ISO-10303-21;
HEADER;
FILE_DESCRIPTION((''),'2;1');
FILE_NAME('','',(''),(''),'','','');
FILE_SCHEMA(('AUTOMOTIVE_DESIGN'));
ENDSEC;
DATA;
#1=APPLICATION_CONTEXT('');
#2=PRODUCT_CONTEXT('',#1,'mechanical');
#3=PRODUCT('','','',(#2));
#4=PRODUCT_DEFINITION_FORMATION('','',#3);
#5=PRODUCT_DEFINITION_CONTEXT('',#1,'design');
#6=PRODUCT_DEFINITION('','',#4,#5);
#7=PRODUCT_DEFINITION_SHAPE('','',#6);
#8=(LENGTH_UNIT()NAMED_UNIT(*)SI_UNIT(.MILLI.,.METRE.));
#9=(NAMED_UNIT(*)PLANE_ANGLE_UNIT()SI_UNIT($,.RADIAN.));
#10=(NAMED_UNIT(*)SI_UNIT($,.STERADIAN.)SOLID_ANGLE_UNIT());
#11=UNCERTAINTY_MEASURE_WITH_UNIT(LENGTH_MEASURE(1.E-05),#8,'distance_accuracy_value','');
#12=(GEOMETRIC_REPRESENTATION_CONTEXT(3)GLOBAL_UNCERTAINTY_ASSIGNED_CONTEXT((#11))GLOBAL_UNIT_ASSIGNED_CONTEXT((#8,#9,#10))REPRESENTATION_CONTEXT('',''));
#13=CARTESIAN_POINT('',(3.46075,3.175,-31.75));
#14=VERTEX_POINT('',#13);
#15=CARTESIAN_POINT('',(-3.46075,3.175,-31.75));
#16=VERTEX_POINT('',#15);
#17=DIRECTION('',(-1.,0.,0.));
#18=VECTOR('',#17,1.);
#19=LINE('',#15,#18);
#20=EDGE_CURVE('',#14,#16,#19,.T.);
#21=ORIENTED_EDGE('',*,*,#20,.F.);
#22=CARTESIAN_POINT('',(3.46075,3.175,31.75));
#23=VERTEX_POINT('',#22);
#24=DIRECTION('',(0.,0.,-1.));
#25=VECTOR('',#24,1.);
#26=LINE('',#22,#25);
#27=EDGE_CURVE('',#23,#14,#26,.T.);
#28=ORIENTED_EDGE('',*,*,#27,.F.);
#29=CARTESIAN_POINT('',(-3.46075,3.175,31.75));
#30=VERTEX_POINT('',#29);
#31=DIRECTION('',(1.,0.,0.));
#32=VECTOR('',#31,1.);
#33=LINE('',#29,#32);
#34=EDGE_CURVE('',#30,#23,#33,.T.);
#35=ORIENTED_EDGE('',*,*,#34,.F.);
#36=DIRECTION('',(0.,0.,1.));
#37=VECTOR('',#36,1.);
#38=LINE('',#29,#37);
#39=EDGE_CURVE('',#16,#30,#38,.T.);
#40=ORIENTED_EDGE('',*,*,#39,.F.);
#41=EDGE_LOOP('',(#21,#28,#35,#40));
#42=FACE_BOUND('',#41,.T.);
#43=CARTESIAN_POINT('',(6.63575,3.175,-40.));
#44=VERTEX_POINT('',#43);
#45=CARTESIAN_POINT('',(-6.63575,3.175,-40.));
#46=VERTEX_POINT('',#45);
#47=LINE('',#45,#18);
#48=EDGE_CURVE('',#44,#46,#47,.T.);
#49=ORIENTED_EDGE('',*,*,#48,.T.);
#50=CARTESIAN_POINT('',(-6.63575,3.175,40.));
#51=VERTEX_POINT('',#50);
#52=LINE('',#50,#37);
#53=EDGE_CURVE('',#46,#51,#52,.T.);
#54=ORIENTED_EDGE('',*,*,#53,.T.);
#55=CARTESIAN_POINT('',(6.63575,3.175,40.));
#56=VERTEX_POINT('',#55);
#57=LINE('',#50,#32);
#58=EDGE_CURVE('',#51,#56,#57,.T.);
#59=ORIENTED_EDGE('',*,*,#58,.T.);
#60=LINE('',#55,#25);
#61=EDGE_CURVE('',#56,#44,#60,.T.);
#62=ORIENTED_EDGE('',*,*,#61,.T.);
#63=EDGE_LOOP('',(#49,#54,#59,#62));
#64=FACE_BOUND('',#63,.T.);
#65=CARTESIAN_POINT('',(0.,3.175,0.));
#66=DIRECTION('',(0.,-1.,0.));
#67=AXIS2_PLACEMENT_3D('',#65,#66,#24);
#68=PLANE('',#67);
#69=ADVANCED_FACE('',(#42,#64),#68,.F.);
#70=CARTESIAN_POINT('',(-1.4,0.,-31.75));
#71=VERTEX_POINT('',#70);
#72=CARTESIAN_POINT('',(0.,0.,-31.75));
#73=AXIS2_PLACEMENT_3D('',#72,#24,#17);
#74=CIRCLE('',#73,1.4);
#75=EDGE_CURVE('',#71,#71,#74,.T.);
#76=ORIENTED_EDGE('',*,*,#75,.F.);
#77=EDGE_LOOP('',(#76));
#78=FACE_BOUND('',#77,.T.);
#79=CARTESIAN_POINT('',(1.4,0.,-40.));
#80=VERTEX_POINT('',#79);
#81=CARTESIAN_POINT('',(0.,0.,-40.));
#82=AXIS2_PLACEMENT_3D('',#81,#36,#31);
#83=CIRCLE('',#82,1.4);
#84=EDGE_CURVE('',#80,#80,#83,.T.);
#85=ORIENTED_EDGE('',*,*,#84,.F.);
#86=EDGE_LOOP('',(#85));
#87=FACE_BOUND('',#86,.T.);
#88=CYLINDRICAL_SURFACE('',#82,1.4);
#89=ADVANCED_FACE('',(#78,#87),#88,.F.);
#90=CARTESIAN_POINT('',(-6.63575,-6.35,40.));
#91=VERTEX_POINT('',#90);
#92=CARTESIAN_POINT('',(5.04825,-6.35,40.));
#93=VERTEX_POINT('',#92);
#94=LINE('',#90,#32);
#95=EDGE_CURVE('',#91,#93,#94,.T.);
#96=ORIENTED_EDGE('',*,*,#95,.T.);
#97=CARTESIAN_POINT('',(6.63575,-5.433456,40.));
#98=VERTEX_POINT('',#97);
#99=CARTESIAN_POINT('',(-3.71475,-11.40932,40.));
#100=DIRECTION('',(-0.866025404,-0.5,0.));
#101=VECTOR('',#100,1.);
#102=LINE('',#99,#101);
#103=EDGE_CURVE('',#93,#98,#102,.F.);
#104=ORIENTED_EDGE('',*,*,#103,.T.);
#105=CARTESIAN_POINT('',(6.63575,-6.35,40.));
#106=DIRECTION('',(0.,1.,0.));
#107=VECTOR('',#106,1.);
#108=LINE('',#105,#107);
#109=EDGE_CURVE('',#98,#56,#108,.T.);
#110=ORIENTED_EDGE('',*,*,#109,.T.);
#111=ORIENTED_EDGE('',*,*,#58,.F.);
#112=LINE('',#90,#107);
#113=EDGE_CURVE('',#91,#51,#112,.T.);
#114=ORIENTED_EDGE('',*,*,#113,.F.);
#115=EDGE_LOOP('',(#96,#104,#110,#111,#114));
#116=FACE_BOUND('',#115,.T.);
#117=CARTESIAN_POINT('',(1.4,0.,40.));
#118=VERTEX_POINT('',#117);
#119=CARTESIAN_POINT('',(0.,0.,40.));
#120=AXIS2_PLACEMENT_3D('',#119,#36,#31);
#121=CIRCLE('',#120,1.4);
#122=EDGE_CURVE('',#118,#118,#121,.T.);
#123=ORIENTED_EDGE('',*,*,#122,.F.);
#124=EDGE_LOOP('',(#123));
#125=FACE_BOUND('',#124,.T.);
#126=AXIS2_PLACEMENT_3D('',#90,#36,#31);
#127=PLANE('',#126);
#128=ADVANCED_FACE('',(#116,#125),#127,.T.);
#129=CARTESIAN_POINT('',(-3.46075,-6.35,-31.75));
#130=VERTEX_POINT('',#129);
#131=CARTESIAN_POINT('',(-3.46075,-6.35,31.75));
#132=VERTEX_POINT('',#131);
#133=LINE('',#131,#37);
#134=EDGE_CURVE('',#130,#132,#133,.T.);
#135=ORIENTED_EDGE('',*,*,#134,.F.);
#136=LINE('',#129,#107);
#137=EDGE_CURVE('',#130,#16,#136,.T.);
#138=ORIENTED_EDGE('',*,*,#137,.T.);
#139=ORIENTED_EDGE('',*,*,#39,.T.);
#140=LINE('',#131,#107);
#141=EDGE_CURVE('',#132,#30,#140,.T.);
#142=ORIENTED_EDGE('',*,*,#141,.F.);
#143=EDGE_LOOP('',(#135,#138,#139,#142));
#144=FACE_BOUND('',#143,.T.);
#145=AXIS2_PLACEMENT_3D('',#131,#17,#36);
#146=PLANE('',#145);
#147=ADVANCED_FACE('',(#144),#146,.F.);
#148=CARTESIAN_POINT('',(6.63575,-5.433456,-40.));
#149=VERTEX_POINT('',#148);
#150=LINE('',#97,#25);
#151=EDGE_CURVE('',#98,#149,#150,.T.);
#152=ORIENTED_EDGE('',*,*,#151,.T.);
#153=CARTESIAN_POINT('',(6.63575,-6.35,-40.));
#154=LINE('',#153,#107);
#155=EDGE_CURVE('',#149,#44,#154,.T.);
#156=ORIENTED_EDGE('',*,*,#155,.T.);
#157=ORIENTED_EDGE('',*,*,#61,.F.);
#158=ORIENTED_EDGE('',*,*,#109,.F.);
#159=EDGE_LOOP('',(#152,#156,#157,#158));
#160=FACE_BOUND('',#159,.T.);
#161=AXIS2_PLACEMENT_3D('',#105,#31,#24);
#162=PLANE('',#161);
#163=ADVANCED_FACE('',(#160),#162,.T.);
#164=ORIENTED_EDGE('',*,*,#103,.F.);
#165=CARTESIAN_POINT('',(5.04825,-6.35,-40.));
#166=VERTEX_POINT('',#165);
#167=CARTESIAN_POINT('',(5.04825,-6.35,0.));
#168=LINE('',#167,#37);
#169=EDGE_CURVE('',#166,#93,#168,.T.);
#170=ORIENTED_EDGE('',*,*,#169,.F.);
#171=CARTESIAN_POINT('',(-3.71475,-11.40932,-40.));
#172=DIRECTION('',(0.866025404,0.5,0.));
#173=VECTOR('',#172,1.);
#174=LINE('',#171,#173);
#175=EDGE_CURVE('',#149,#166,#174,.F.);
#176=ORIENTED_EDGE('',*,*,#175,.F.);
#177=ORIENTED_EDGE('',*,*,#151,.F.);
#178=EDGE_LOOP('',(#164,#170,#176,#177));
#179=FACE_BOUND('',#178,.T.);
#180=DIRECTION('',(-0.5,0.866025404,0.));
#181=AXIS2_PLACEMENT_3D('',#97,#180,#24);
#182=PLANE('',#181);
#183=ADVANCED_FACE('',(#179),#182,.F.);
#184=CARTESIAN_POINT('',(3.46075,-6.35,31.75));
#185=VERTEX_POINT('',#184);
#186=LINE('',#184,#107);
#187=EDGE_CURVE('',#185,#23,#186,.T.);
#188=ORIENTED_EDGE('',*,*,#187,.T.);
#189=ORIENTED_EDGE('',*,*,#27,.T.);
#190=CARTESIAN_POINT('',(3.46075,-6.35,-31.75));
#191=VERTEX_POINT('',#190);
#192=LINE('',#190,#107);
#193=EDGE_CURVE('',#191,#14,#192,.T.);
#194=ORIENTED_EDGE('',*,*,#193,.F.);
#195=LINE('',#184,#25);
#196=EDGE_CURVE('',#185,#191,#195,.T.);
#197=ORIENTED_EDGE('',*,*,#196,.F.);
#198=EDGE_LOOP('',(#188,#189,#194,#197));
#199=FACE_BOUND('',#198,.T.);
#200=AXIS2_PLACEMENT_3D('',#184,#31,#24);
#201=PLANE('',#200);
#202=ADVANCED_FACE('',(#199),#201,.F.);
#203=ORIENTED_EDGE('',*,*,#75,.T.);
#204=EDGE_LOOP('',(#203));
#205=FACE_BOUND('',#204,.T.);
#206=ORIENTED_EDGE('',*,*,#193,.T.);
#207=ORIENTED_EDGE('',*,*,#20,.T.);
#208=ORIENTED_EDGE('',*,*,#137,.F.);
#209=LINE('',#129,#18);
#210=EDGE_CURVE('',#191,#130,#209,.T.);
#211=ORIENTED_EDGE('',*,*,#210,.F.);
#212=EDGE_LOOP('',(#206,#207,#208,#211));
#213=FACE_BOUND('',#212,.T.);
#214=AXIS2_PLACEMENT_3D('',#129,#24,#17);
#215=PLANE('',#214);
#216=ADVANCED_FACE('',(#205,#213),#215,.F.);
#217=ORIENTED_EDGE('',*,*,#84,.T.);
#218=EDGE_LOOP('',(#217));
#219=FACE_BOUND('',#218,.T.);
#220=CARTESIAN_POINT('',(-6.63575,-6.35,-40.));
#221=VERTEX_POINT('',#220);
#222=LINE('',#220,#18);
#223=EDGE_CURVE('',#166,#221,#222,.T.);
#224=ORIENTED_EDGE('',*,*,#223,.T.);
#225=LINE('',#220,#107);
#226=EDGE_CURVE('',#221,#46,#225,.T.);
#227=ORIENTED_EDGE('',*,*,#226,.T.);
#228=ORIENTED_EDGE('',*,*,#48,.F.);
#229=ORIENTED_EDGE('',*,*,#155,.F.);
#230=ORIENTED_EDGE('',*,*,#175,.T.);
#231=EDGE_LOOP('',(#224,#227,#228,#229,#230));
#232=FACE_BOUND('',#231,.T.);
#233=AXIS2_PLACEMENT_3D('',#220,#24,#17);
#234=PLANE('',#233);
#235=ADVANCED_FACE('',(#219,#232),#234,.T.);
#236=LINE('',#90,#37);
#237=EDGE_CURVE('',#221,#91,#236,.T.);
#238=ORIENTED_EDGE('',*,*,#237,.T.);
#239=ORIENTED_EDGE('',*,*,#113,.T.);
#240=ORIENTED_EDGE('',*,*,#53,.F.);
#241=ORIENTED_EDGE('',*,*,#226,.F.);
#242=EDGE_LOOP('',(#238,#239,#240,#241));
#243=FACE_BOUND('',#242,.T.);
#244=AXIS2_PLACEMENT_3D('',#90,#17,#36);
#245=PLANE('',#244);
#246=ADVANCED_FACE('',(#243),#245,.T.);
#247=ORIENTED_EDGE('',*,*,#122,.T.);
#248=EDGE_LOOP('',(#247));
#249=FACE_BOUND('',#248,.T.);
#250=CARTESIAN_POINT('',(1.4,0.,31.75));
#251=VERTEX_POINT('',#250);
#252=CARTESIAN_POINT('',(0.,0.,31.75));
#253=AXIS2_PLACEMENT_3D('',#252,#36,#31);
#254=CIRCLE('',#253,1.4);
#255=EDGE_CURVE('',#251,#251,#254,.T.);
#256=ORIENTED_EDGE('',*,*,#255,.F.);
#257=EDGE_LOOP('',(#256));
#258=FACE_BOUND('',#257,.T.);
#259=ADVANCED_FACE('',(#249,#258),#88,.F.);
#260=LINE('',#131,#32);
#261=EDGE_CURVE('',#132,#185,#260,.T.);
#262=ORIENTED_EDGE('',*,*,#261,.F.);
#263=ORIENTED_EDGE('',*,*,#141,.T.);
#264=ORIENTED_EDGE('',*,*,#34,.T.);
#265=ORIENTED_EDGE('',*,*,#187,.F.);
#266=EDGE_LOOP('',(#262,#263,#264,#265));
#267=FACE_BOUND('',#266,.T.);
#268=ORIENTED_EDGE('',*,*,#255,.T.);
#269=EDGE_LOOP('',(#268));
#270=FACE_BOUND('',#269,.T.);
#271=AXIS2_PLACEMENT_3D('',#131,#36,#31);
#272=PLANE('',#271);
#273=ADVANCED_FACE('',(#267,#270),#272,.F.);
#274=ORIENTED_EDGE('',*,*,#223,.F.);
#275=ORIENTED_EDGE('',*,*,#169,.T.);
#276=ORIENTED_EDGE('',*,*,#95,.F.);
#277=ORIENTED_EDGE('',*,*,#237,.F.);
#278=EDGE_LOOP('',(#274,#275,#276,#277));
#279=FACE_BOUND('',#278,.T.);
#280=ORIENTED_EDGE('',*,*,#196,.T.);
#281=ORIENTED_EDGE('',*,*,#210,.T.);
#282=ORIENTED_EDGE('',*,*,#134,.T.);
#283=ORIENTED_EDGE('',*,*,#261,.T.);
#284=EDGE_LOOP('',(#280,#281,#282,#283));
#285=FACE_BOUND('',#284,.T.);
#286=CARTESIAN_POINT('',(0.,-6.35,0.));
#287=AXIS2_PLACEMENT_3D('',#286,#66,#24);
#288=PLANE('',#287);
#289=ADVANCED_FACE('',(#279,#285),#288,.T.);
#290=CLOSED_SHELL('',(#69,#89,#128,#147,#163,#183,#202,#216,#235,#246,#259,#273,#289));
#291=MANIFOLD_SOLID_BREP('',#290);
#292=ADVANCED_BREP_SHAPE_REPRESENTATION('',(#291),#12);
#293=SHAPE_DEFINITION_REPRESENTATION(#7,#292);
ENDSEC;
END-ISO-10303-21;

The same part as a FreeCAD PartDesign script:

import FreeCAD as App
import Part
import Sketcher

V = App.Vector


def edges_at(feature, points):
    """Names of the edges that pass closest to the given points."""
    edges = feature.Shape.Edges
    near = lambda p: min(range(len(edges)), key=lambda i: edges[i].distToShape(Part.Vertex(*p))[0])
    return sorted({f"Edge{near(p) + 1}" for p in points})


def add_polygon(sketch, points):
    """Adds a closed chain of lines whose ends are joined by coincident constraints."""
    first, n = sketch.GeometryCount, len(points)
    for a, b in zip(points, points[1:] + points[:1]):
        sketch.addGeometry(Part.LineSegment(App.Vector(*a, 0), App.Vector(*b, 0)), False)
    for i in range(n):
        sketch.addConstraint(Sketcher.Constraint("Coincident", first + i, 2, first + (i + 1) % n, 1))

doc = App.newDocument("Part")
params = doc.addObject("Spreadsheet::Sheet", "Params")
for row, (alias, value) in enumerate([
    ("sketch1_height", "80 mm"),
    ("sketch1_height2", "63.5 mm"),
    ("pad1_length", "3.175 mm"),
    ("pad1_length2", "6.35 mm"),
    ("sketch2_diameter", "2.8 mm"),
    ("chamfer_size", "1.5875 mm"),
    ("chamfer_size2", "0.916544 mm"),
], start=1):
    params.set(f"A{row}", alias)
    params.set(f"B{row}", "=" + value)
    params.setAlias(f"B{row}", alias)

body = doc.addObject("PartDesign::Body", "Body")

# Sketch on XZ plane
sketch1 = doc.addObject("Sketcher::SketchObject", "Sketch")
body.addObject(sketch1)
sketch1.AttachmentSupport = (doc.XZ_Plane, [""])
sketch1.MapMode = "FlatFace"
add_polygon(sketch1, [(-7, -40), (-7, 40), (7, 40), (7, -40)])  # lines 0-3
add_polygon(sketch1, [(3, 32), (-3, 32), (-3, -32), (3, -32)])  # lines 4-7
sketch1.addConstraint([
    Sketcher.Constraint("Vertical", 0),
    Sketcher.Constraint("Horizontal", 1),
    Sketcher.Constraint("Vertical", 2),
    Sketcher.Constraint("Horizontal", 3),
    Sketcher.Constraint("Horizontal", 4),
    Sketcher.Constraint("Vertical", 5),
    Sketcher.Constraint("Horizontal", 6),
    Sketcher.Constraint("Vertical", 7),
    Sketcher.Constraint("Symmetric", 0, 2, 2, 2, -1, 1),
    Sketcher.Constraint("Symmetric", 4, 2, 6, 2, -1, 1),
    Sketcher.Constraint("DistanceY", 0, 1, 0, 2, 80.0),
    Sketcher.Constraint("DistanceY", 5, 2, 5, 1, 63.5),
    Sketcher.Constraint("DistanceX", 1, 1, 1, 2, 13.2715),
    Sketcher.Constraint("DistanceX", 4, 2, 4, 1, 6.9215),
])
sketch1.setExpression("Constraints[18]", "Params.sketch1_height")
sketch1.setExpression("Constraints[19]", "Params.sketch1_height2")
pad1 = doc.addObject("PartDesign::Pad", "Pad")
body.addObject(pad1)
pad1.Profile = sketch1
pad1.Type = "TwoLengths"
pad1.setExpression("Length", "Params.pad1_length")
pad1.setExpression("Length2", "Params.pad1_length2")
pad1.Reversed = True

# Sketch on XY plane
sketch2 = doc.addObject("Sketcher::SketchObject", "Sketch001")
body.addObject(sketch2)
sketch2.AttachmentSupport = (doc.XY_Plane, [""])
sketch2.MapMode = "FlatFace"
sketch2.AttachmentOffset = App.Placement(V(0, 0, 40), App.Rotation())
sketch2.addGeometry(Part.Circle(V(0, 0, 0), V(0, 0, 1), 1.4), False)
sketch2.addConstraint([
    Sketcher.Constraint("Coincident", 0, 3, -1, 1),
    Sketcher.Constraint("Diameter", 0, 2.8),
])
sketch2.setExpression("Constraints[1]", "Params.sketch2_diameter")
pocket1 = doc.addObject("PartDesign::Pocket", "Pocket")
body.addObject(pocket1)
pocket1.Profile = sketch2
pocket1.Type = "ThroughAll"
doc.recompute()

chamfer = doc.addObject("PartDesign::Chamfer", "Chamfer")
body.addObject(chamfer)
chamfer.Base = (pocket1, edges_at(pocket1, [(6.636, -6.35, 0)]))
chamfer.ChamferType = "Two distances"
chamfer.setExpression("Size", "Params.chamfer_size")
chamfer.setExpression("Size2", "Params.chamfer_size2")

doc.recompute()
